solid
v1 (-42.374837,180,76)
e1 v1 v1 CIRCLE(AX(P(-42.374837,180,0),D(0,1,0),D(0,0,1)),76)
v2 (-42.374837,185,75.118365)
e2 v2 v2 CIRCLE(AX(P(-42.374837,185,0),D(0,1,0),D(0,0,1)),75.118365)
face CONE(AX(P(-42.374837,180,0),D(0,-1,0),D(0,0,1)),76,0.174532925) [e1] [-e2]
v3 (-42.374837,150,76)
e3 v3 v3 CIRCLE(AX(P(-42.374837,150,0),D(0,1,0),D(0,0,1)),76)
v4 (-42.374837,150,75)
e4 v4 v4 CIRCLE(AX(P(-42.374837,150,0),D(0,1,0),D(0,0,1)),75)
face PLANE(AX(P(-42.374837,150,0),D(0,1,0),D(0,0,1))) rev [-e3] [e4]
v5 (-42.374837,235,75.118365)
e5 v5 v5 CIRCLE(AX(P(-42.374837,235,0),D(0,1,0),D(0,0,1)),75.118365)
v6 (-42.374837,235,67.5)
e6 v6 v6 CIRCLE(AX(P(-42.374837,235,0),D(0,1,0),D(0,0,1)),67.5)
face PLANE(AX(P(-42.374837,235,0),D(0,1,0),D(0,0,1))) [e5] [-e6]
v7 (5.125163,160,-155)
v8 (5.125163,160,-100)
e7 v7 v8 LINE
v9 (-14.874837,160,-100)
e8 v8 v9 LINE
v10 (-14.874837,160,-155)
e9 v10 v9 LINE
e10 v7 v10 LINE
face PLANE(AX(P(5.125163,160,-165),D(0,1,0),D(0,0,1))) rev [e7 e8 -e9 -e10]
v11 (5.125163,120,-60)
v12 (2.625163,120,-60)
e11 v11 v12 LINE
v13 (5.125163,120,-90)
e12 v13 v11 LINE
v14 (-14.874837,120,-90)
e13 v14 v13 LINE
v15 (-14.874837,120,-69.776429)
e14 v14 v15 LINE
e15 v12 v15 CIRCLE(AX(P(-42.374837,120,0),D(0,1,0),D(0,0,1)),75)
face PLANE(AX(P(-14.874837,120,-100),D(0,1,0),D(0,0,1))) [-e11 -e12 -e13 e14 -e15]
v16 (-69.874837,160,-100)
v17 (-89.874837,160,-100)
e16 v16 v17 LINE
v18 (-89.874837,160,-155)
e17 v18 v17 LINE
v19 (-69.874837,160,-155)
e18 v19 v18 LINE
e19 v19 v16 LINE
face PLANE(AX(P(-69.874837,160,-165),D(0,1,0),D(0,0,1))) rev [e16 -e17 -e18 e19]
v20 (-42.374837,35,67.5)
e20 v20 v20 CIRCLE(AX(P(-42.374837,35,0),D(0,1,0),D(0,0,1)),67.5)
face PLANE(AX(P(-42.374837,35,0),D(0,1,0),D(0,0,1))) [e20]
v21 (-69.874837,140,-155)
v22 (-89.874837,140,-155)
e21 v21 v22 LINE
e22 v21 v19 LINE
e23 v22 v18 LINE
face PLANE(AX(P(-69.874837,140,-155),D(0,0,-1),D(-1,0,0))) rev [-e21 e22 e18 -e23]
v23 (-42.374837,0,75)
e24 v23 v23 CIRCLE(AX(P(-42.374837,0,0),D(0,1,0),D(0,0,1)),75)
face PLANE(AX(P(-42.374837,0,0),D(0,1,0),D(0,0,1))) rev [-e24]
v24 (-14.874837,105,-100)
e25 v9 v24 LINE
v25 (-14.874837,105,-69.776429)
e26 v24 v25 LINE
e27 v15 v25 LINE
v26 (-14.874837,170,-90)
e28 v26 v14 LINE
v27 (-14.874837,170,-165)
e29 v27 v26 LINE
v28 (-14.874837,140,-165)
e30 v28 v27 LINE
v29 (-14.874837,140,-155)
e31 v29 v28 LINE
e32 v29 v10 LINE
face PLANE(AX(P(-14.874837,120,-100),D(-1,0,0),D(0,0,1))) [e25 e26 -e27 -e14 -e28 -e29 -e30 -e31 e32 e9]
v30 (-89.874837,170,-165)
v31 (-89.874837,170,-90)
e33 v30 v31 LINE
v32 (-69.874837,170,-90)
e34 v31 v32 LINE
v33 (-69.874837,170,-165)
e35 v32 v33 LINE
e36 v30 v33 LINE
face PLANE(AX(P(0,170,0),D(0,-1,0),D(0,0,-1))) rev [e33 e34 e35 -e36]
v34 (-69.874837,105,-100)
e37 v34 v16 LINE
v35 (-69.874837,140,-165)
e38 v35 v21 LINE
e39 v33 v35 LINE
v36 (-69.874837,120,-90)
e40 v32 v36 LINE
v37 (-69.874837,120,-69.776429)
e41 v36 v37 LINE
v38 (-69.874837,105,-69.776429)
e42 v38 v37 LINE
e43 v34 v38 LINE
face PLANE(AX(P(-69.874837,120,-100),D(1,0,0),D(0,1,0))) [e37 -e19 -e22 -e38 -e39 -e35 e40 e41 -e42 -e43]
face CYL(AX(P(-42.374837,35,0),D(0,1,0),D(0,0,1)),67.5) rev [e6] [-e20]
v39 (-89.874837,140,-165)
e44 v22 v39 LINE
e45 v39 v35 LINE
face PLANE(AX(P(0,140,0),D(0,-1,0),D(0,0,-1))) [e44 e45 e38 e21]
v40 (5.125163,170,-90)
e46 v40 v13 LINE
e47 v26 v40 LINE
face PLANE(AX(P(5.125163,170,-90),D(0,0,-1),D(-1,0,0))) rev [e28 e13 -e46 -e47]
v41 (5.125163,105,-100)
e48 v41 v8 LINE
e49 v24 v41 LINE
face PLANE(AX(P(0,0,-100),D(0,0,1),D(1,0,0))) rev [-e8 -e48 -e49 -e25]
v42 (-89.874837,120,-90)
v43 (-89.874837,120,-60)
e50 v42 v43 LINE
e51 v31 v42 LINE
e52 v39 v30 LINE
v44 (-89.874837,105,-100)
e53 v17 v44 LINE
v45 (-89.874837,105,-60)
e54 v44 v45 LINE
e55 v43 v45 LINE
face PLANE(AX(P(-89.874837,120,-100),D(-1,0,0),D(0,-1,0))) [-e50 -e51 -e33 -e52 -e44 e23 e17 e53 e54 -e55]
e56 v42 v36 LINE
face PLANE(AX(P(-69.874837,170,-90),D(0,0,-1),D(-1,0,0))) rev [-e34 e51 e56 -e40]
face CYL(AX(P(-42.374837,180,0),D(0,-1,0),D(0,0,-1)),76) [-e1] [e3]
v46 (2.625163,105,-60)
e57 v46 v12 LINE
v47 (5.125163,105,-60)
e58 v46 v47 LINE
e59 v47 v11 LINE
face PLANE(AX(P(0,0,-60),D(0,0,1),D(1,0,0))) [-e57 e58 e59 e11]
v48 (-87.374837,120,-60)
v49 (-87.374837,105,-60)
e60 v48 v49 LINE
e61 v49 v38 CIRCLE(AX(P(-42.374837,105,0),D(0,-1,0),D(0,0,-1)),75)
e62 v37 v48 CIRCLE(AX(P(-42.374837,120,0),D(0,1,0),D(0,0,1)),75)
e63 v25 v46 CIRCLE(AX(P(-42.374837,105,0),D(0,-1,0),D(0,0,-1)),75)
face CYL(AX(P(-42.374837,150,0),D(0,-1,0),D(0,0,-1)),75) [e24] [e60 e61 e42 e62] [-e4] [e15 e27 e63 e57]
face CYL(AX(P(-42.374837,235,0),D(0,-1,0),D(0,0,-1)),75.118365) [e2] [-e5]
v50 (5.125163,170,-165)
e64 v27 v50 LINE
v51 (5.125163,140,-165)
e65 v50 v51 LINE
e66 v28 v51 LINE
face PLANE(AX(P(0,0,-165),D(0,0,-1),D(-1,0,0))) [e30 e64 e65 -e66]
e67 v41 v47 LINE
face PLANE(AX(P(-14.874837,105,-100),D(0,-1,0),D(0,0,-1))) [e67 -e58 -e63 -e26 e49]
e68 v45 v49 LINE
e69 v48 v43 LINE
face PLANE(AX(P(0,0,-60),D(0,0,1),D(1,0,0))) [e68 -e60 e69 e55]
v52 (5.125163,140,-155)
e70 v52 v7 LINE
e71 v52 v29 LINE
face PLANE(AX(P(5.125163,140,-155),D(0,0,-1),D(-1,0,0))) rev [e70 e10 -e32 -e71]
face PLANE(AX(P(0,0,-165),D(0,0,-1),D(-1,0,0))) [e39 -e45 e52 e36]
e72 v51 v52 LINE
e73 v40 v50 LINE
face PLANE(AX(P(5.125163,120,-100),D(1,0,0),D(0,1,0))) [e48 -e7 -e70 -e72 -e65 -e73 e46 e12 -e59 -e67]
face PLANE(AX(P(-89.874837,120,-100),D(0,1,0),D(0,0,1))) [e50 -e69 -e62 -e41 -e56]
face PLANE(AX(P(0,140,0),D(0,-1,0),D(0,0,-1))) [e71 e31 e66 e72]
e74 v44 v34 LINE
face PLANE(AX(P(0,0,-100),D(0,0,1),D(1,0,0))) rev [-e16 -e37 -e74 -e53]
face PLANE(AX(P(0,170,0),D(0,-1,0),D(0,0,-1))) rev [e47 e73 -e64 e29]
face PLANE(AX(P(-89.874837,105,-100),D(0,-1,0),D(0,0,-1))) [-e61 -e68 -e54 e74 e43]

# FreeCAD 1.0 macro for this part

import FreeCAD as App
import Part
import Sketcher

doc = App.newDocument("Part")
params = doc.addObject("Spreadsheet::Sheet", "Params")
for row, (alias, value) in enumerate([
    ("sketch1_diameter", "150 mm"),
    ("pad1_length", "150 mm"),
    ("sketch2_diameter", "152 mm"),
    ("pad2_length", "30 mm"),
    ("sketch3_diameter", "152 mm"),
    ("pad3_length", "5 mm"),
    ("pad3_taper", "-10 deg"),
    ("pad4_length", "50 mm"),
    ("sketch5_width", "20 mm"),
    ("sketch5_height", "15 mm"),
    ("pad5_length", "20 mm"),
    ("pad5_length2", "20 mm"),
    ("sketch6_width", "20 mm"),
    ("sketch6_height", "10 mm"),
    ("pad6_length", "50 mm"),
    ("sketch7_width", "20 mm"),
    ("sketch7_height", "10 mm"),
    ("pad7_length", "65 mm"),
    ("sketch8_width", "20 mm"),
    ("sketch8_height", "10 mm"),
    ("pad8_length", "50 mm"),
    ("sketch9_width", "20 mm"),
    ("sketch9_height", "10 mm"),
    ("pad9_length", "65 mm"),
    ("sketch10_width", "20 mm"),
    ("sketch10_height", "10 mm"),
    ("pad10_length", "20 mm"),
    ("sketch11_diameter", "135 mm"),
    ("pocket1_length", "200 mm"),
], start=1):
    params.set(f"A{row}", alias)
    params.set(f"B{row}", "=" + value)
    params.setAlias(f"B{row}", alias)

body = doc.addObject("PartDesign::Body", "Body")

# Sketch on XZ plane
sketch1 = body.newObject("Sketcher::SketchObject", "Sketch")
sketch1.AttachmentSupport = (doc.getObject("XZ_Plane"), [""])
sketch1.MapMode = "FlatFace"
sketch1.addGeometry(Part.Circle(App.Vector(-42.374837, 0, 0), App.Vector(0, 0, 1), 75), False)
sketch1.addConstraint(Sketcher.Constraint("PointOnObject", 0, 3, -1))
sketch1.addConstraint(Sketcher.Constraint("Diameter", 0, 150.0))
sketch1.addConstraint(Sketcher.Constraint("DistanceX", 0, 3, -1, 1, 42.374837))
sketch1.setExpression("Constraints[1]", "Params.sketch1_diameter")
pad1 = body.newObject("PartDesign::Pad", "Pad")
pad1.Profile = sketch1
pad1.setExpression("Length", "Params.pad1_length")
pad1.Reversed = True

# Sketch on XZ plane
sketch2 = body.newObject("Sketcher::SketchObject", "Sketch001")
sketch2.AttachmentSupport = (doc.getObject("XZ_Plane"), [""])
sketch2.MapMode = "FlatFace"
sketch2.AttachmentOffset = App.Placement(App.Vector(0, 0, -150), App.Rotation())
sketch2.addGeometry(Part.Circle(App.Vector(-42.374837, 0, 0), App.Vector(0, 0, 1), 76), False)
sketch2.addConstraint(Sketcher.Constraint("PointOnObject", 0, 3, -1))
sketch2.addConstraint(Sketcher.Constraint("Diameter", 0, 152.0))
sketch2.addConstraint(Sketcher.Constraint("DistanceX", 0, 3, -1, 1, 42.374837))
sketch2.setExpression("Constraints[1]", "Params.sketch2_diameter")
pad2 = body.newObject("PartDesign::Pad", "Pad001")
pad2.Profile = sketch2
pad2.setExpression("Length", "Params.pad2_length")
pad2.Reversed = True

# Sketch on XZ plane
sketch3 = body.newObject("Sketcher::SketchObject", "Sketch002")
sketch3.AttachmentSupport = (doc.getObject("XZ_Plane"), [""])
sketch3.MapMode = "FlatFace"
sketch3.AttachmentOffset = App.Placement(App.Vector(0, 0, -180), App.Rotation())
sketch3.addGeometry(Part.Circle(App.Vector(-42.374837, 0, 0), App.Vector(0, 0, 1), 76), False)
sketch3.addConstraint(Sketcher.Constraint("PointOnObject", 0, 3, -1))
sketch3.addConstraint(Sketcher.Constraint("Diameter", 0, 152.0))
sketch3.addConstraint(Sketcher.Constraint("DistanceX", 0, 3, -1, 1, 42.374837))
sketch3.setExpression("Constraints[1]", "Params.sketch3_diameter")
pad3 = body.newObject("PartDesign::Pad", "Pad002")
pad3.Profile = sketch3
pad3.setExpression("Length", "Params.pad3_length")
pad3.Reversed = True
pad3.setExpression("TaperAngle", "Params.pad3_taper")

# Sketch on XZ plane
sketch4 = body.newObject("Sketcher::SketchObject", "Sketch003")
sketch4.AttachmentSupport = (doc.getObject("XZ_Plane"), [""])
sketch4.MapMode = "FlatFace"
sketch4.AttachmentOffset = App.Placement(App.Vector(0, 0, -185), App.Rotation())
sketch4.addGeometry(Part.Circle(App.Vector(-42.374837, 0, 0), App.Vector(0, 0, 1), 75.118365), False)
sketch4.addConstraint(Sketcher.Constraint("PointOnObject", 0, 3, -1))
sketch4.addConstraint(Sketcher.Constraint("Diameter", 0, 150.23673))
sketch4.addConstraint(Sketcher.Constraint("DistanceX", 0, 3, -1, 1, 42.374837))
pad4 = body.newObject("PartDesign::Pad", "Pad003")
pad4.Profile = sketch4
pad4.setExpression("Length", "Params.pad4_length")
pad4.Reversed = True

# Sketch on XY plane
sketch5 = body.newObject("Sketcher::SketchObject", "Sketch004")
sketch5.AttachmentSupport = (doc.getObject("XY_Plane"), [""])
sketch5.MapMode = "FlatFace"
sketch5.AttachmentOffset = App.Placement(App.Vector(0, 0, -80), App.Rotation())
sketch5.addGeometry(Part.LineSegment(App.Vector(-14.874837, 120, 0), App.Vector(-14.874837, 105, 0)), False)
sketch5.addGeometry(Part.LineSegment(App.Vector(-14.874837, 105, 0), App.Vector(5.125163, 105, 0)), False)
sketch5.addGeometry(Part.LineSegment(App.Vector(5.125163, 105, 0), App.Vector(5.125163, 120, 0)), False)
sketch5.addGeometry(Part.LineSegment(App.Vector(5.125163, 120, 0), App.Vector(-14.874837, 120, 0)), False)
sketch5.addGeometry(Part.LineSegment(App.Vector(-89.874837, 120, 0), App.Vector(-89.874837, 105, 0)), False)
sketch5.addGeometry(Part.LineSegment(App.Vector(-89.874837, 105, 0), App.Vector(-69.874837, 105, 0)), False)
sketch5.addGeometry(Part.LineSegment(App.Vector(-69.874837, 105, 0), App.Vector(-69.874837, 120, 0)), False)
sketch5.addGeometry(Part.LineSegment(App.Vector(-69.874837, 120, 0), App.Vector(-89.874837, 120, 0)), False)
sketch5.addConstraint(Sketcher.Constraint("Coincident", 0, 2, 1, 1))
sketch5.addConstraint(Sketcher.Constraint("Coincident", 1, 2, 2, 1))
sketch5.addConstraint(Sketcher.Constraint("Coincident", 2, 2, 3, 1))
sketch5.addConstraint(Sketcher.Constraint("Coincident", 3, 2, 0, 1))
sketch5.addConstraint(Sketcher.Constraint("Coincident", 4, 2, 5, 1))
sketch5.addConstraint(Sketcher.Constraint("Coincident", 5, 2, 6, 1))
sketch5.addConstraint(Sketcher.Constraint("Coincident", 6, 2, 7, 1))
sketch5.addConstraint(Sketcher.Constraint("Coincident", 7, 2, 4, 1))
sketch5.addConstraint(Sketcher.Constraint("Vertical", 0))
sketch5.addConstraint(Sketcher.Constraint("Horizontal", 1))
sketch5.addConstraint(Sketcher.Constraint("Vertical", 2))
sketch5.addConstraint(Sketcher.Constraint("Horizontal", 3))
sketch5.addConstraint(Sketcher.Constraint("Vertical", 4))
sketch5.addConstraint(Sketcher.Constraint("Horizontal", 5))
sketch5.addConstraint(Sketcher.Constraint("Vertical", 6))
sketch5.addConstraint(Sketcher.Constraint("Horizontal", 7))
sketch5.addConstraint(Sketcher.Constraint("Horizontal", 1, 2, 4, 2))
sketch5.addConstraint(Sketcher.Constraint("Horizontal", 3, 2, 6, 2))
sketch5.addConstraint(Sketcher.Constraint("Equal", 3, 5))
sketch5.addConstraint(Sketcher.Constraint("DistanceX", 1, 1, 1, 2, 20.0))
sketch5.addConstraint(Sketcher.Constraint("DistanceY", 0, 2, 0, 1, 15.0))
sketch5.addConstraint(Sketcher.Constraint("DistanceY", -1, 1, 0, 2, 105.0))
sketch5.addConstraint(Sketcher.Constraint("DistanceX", 4, 2, 0, 2, 75.0))
sketch5.addConstraint(Sketcher.Constraint("DistanceX", 0, 2, -1, 1, 14.874837))
sketch5.setExpression("Constraints[19]", "Params.sketch5_width")
sketch5.setExpression("Constraints[20]", "Params.sketch5_height")
pad5 = body.newObject("PartDesign::Pad", "Pad004")
pad5.Profile = sketch5
pad5.Type = "TwoLengths"
pad5.setExpression("Length", "Params.pad5_length")
pad5.setExpression("Length2", "Params.pad5_length2")

# Sketch on XZ plane
sketch6 = body.newObject("Sketcher::SketchObject", "Sketch005")
sketch6.AttachmentSupport = (doc.getObject("XZ_Plane"), [""])
sketch6.MapMode = "FlatFace"
sketch6.AttachmentOffset = App.Placement(App.Vector(0, 0, -120), App.Rotation())
sketch6.addGeometry(Part.LineSegment(App.Vector(-14.874837, -100, 0), App.Vector(-14.874837, -90, 0)), False)
sketch6.addGeometry(Part.LineSegment(App.Vector(-14.874837, -90, 0), App.Vector(5.125163, -90, 0)), False)
sketch6.addGeometry(Part.LineSegment(App.Vector(5.125163, -90, 0), App.Vector(5.125163, -100, 0)), False)
sketch6.addGeometry(Part.LineSegment(App.Vector(5.125163, -100, 0), App.Vector(-14.874837, -100, 0)), False)
sketch6.addConstraint(Sketcher.Constraint("Coincident", 0, 2, 1, 1))
sketch6.addConstraint(Sketcher.Constraint("Coincident", 1, 2, 2, 1))
sketch6.addConstraint(Sketcher.Constraint("Coincident", 2, 2, 3, 1))
sketch6.addConstraint(Sketcher.Constraint("Coincident", 3, 2, 0, 1))
sketch6.addConstraint(Sketcher.Constraint("Vertical", 0))
sketch6.addConstraint(Sketcher.Constraint("Horizontal", 1))
sketch6.addConstraint(Sketcher.Constraint("Vertical", 2))
sketch6.addConstraint(Sketcher.Constraint("Horizontal", 3))
sketch6.addConstraint(Sketcher.Constraint("DistanceX", 1, 1, 1, 2, 20.0))
sketch6.addConstraint(Sketcher.Constraint("DistanceY", 0, 1, 0, 2, 10.0))
sketch6.addConstraint(Sketcher.Constraint("DistanceY", 0, 2, -1, 1, 90.0))
sketch6.addConstraint(Sketcher.Constraint("DistanceX", 0, 2, -1, 1, 14.874837))
sketch6.setExpression("Constraints[8]", "Params.sketch6_width")
sketch6.setExpression("Constraints[9]", "Params.sketch6_height")
pad6 = body.newObject("PartDesign::Pad", "Pad005")
pad6.Profile = sketch6
pad6.setExpression("Length", "Params.pad6_length")
pad6.Reversed = True

# Sketch on XY plane
sketch7 = body.newObject("Sketcher::SketchObject", "Sketch006")
sketch7.AttachmentSupport = (doc.getObject("XY_Plane"), [""])
sketch7.MapMode = "FlatFace"
sketch7.AttachmentOffset = App.Placement(App.Vector(0, 0, -100), App.Rotation())
sketch7.addGeometry(Part.LineSegment(App.Vector(5.125163, 170, 0), App.Vector(5.125163, 160, 0)), False)
sketch7.addGeometry(Part.LineSegment(App.Vector(5.125163, 160, 0), App.Vector(-14.874837, 160, 0)), False)
sketch7.addGeometry(Part.LineSegment(App.Vector(-14.874837, 160, 0), App.Vector(-14.874837, 170, 0)), False)
sketch7.addGeometry(Part.LineSegment(App.Vector(-14.874837, 170, 0), App.Vector(5.125163, 170, 0)), False)
sketch7.addConstraint(Sketcher.Constraint("Coincident", 0, 2, 1, 1))
sketch7.addConstraint(Sketcher.Constraint("Coincident", 1, 2, 2, 1))
sketch7.addConstraint(Sketcher.Constraint("Coincident", 2, 2, 3, 1))
sketch7.addConstraint(Sketcher.Constraint("Coincident", 3, 2, 0, 1))
sketch7.addConstraint(Sketcher.Constraint("Vertical", 0))
sketch7.addConstraint(Sketcher.Constraint("Horizontal", 1))
sketch7.addConstraint(Sketcher.Constraint("Vertical", 2))
sketch7.addConstraint(Sketcher.Constraint("Horizontal", 3))
sketch7.addConstraint(Sketcher.Constraint("DistanceX", 1, 2, 1, 1, 20.0))
sketch7.addConstraint(Sketcher.Constraint("DistanceY", 0, 2, 0, 1, 10.0))
sketch7.addConstraint(Sketcher.Constraint("DistanceY", -1, 1, 0, 2, 160.0))
sketch7.addConstraint(Sketcher.Constraint("DistanceX", -1, 1, 0, 2, 5.125163))
sketch7.setExpression("Constraints[8]", "Params.sketch7_width")
sketch7.setExpression("Constraints[9]", "Params.sketch7_height")
pad7 = body.newObject("PartDesign::Pad", "Pad006")
pad7.Profile = sketch7
pad7.setExpression("Length", "Params.pad7_length")
pad7.Reversed = True

# Sketch on XZ plane
sketch8 = body.newObject("Sketcher::SketchObject", "Sketch007")
sketch8.AttachmentSupport = (doc.getObject("XZ_Plane"), [""])
sketch8.MapMode = "FlatFace"
sketch8.AttachmentOffset = App.Placement(App.Vector(0, 0, -120), App.Rotation())
sketch8.addGeometry(Part.LineSegment(App.Vector(-89.874837, -100, 0), App.Vector(-89.874837, -90, 0)), False)
sketch8.addGeometry(Part.LineSegment(App.Vector(-89.874837, -90, 0), App.Vector(-69.874837, -90, 0)), False)
sketch8.addGeometry(Part.LineSegment(App.Vector(-69.874837, -90, 0), App.Vector(-69.874837, -100, 0)), False)
sketch8.addGeometry(Part.LineSegment(App.Vector(-69.874837, -100, 0), App.Vector(-89.874837, -100, 0)), False)
sketch8.addConstraint(Sketcher.Constraint("Coincident", 0, 2, 1, 1))
sketch8.addConstraint(Sketcher.Constraint("Coincident", 1, 2, 2, 1))
sketch8.addConstraint(Sketcher.Constraint("Coincident", 2, 2, 3, 1))
sketch8.addConstraint(Sketcher.Constraint("Coincident", 3, 2, 0, 1))
sketch8.addConstraint(Sketcher.Constraint("Vertical", 0))
sketch8.addConstraint(Sketcher.Constraint("Horizontal", 1))
sketch8.addConstraint(Sketcher.Constraint("Vertical", 2))
sketch8.addConstraint(Sketcher.Constraint("Horizontal", 3))
sketch8.addConstraint(Sketcher.Constraint("DistanceX", 1, 1, 1, 2, 20.0))
sketch8.addConstraint(Sketcher.Constraint("DistanceY", 0, 1, 0, 2, 10.0))
sketch8.addConstraint(Sketcher.Constraint("DistanceY", 0, 2, -1, 1, 90.0))
sketch8.addConstraint(Sketcher.Constraint("DistanceX", 0, 2, -1, 1, 89.874837))
sketch8.setExpression("Constraints[8]", "Params.sketch8_width")
sketch8.setExpression("Constraints[9]", "Params.sketch8_height")
pad8 = body.newObject("PartDesign::Pad", "Pad007")
pad8.Profile = sketch8
pad8.setExpression("Length", "Params.pad8_length")
pad8.Reversed = True

# Sketch on XY plane
sketch9 = body.newObject("Sketcher::SketchObject", "Sketch008")
sketch9.AttachmentSupport = (doc.getObject("XY_Plane"), [""])
sketch9.MapMode = "FlatFace"
sketch9.AttachmentOffset = App.Placement(App.Vector(0, 0, -100), App.Rotation())
sketch9.addGeometry(Part.LineSegment(App.Vector(-69.874837, 170, 0), App.Vector(-69.874837, 160, 0)), False)
sketch9.addGeometry(Part.LineSegment(App.Vector(-69.874837, 160, 0), App.Vector(-89.874837, 160, 0)), False)
sketch9.addGeometry(Part.LineSegment(App.Vector(-89.874837, 160, 0), App.Vector(-89.874837, 170, 0)), False)
sketch9.addGeometry(Part.LineSegment(App.Vector(-89.874837, 170, 0), App.Vector(-69.874837, 170, 0)), False)
sketch9.addConstraint(Sketcher.Constraint("Coincident", 0, 2, 1, 1))
sketch9.addConstraint(Sketcher.Constraint("Coincident", 1, 2, 2, 1))
sketch9.addConstraint(Sketcher.Constraint("Coincident", 2, 2, 3, 1))
sketch9.addConstraint(Sketcher.Constraint("Coincident", 3, 2, 0, 1))
sketch9.addConstraint(Sketcher.Constraint("Vertical", 0))
sketch9.addConstraint(Sketcher.Constraint("Horizontal", 1))
sketch9.addConstraint(Sketcher.Constraint("Vertical", 2))
sketch9.addConstraint(Sketcher.Constraint("Horizontal", 3))
sketch9.addConstraint(Sketcher.Constraint("DistanceX", 1, 2, 1, 1, 20.0))
sketch9.addConstraint(Sketcher.Constraint("DistanceY", 0, 2, 0, 1, 10.0))
sketch9.addConstraint(Sketcher.Constraint("DistanceY", -1, 1, 0, 2, 160.0))
sketch9.addConstraint(Sketcher.Constraint("DistanceX", 0, 2, -1, 1, 69.874837))
sketch9.setExpression("Constraints[8]", "Params.sketch9_width")
sketch9.setExpression("Constraints[9]", "Params.sketch9_height")
pad9 = body.newObject("PartDesign::Pad", "Pad008")
pad9.Profile = sketch9
pad9.setExpression("Length", "Params.pad9_length")
pad9.Reversed = True

# Sketch on XZ plane
sketch10 = body.newObject("Sketcher::SketchObject", "Sketch009")
sketch10.AttachmentSupport = (doc.getObject("XZ_Plane"), [""])
sketch10.MapMode = "FlatFace"
sketch10.AttachmentOffset = App.Placement(App.Vector(0, 0, -160), App.Rotation())
sketch10.addGeometry(Part.LineSegment(App.Vector(-14.874837, -155, 0), App.Vector(-14.874837, -165, 0)), False)
sketch10.addGeometry(Part.LineSegment(App.Vector(-14.874837, -165, 0), App.Vector(5.125163, -165, 0)), False)
sketch10.addGeometry(Part.LineSegment(App.Vector(5.125163, -165, 0), App.Vector(5.125163, -155, 0)), False)
sketch10.addGeometry(Part.LineSegment(App.Vector(5.125163, -155, 0), App.Vector(-14.874837, -155, 0)), False)
sketch10.addGeometry(Part.LineSegment(App.Vector(-89.874837, -155, 0), App.Vector(-89.874837, -165, 0)), False)
sketch10.addGeometry(Part.LineSegment(App.Vector(-89.874837, -165, 0), App.Vector(-69.874837, -165, 0)), False)
sketch10.addGeometry(Part.LineSegment(App.Vector(-69.874837, -165, 0), App.Vector(-69.874837, -155, 0)), False)
sketch10.addGeometry(Part.LineSegment(App.Vector(-69.874837, -155, 0), App.Vector(-89.874837, -155, 0)), False)
sketch10.addConstraint(Sketcher.Constraint("Coincident", 0, 2, 1, 1))
sketch10.addConstraint(Sketcher.Constraint("Coincident", 1, 2, 2, 1))
sketch10.addConstraint(Sketcher.Constraint("Coincident", 2, 2, 3, 1))
sketch10.addConstraint(Sketcher.Constraint("Coincident", 3, 2, 0, 1))
sketch10.addConstraint(Sketcher.Constraint("Coincident", 4, 2, 5, 1))
sketch10.addConstraint(Sketcher.Constraint("Coincident", 5, 2, 6, 1))
sketch10.addConstraint(Sketcher.Constraint("Coincident", 6, 2, 7, 1))
sketch10.addConstraint(Sketcher.Constraint("Coincident", 7, 2, 4, 1))
sketch10.addConstraint(Sketcher.Constraint("Vertical", 0))
sketch10.addConstraint(Sketcher.Constraint("Horizontal", 1))
sketch10.addConstraint(Sketcher.Constraint("Vertical", 2))
sketch10.addConstraint(Sketcher.Constraint("Horizontal", 3))
sketch10.addConstraint(Sketcher.Constraint("Vertical", 4))
sketch10.addConstraint(Sketcher.Constraint("Horizontal", 5))
sketch10.addConstraint(Sketcher.Constraint("Vertical", 6))
sketch10.addConstraint(Sketcher.Constraint("Horizontal", 7))
sketch10.addConstraint(Sketcher.Constraint("Horizontal", 1, 2, 4, 2))
sketch10.addConstraint(Sketcher.Constraint("Horizontal", 3, 2, 6, 2))
sketch10.addConstraint(Sketcher.Constraint("Equal", 3, 5))
sketch10.addConstraint(Sketcher.Constraint("DistanceX", 1, 1, 1, 2, 20.0))
sketch10.addConstraint(Sketcher.Constraint("DistanceY", 0, 2, 0, 1, 10.0))
sketch10.addConstraint(Sketcher.Constraint("DistanceY", 0, 2, -1, 1, 165.0))
sketch10.addConstraint(Sketcher.Constraint("DistanceX", 4, 2, 0, 2, 75.0))
sketch10.addConstraint(Sketcher.Constraint("DistanceX", 0, 2, -1, 1, 14.874837))
sketch10.setExpression("Constraints[19]", "Params.sketch10_width")
sketch10.setExpression("Constraints[20]", "Params.sketch10_height")
pad10 = body.newObject("PartDesign::Pad", "Pad009")
pad10.Profile = sketch10
pad10.setExpression("Length", "Params.pad10_length")

# Sketch on XZ plane
sketch11 = body.newObject("Sketcher::SketchObject", "Sketch010")
sketch11.AttachmentSupport = (doc.getObject("XZ_Plane"), [""])
sketch11.MapMode = "FlatFace"
sketch11.AttachmentOffset = App.Placement(App.Vector(0, 0, -235), App.Rotation())
sketch11.addGeometry(Part.Circle(App.Vector(-42.374837, 0, 0), App.Vector(0, 0, 1), 67.5), False)
sketch11.addConstraint(Sketcher.Constraint("PointOnObject", 0, 3, -1))
sketch11.addConstraint(Sketcher.Constraint("Diameter", 0, 135.0))
sketch11.addConstraint(Sketcher.Constraint("DistanceX", 0, 3, -1, 1, 42.374837))
sketch11.setExpression("Constraints[1]", "Params.sketch11_diameter")
pocket1 = body.newObject("PartDesign::Pocket", "Pocket")
pocket1.Profile = sketch11
pocket1.setExpression("Length", "Params.pocket1_length")
pocket1.Reversed = True

doc.recompute()
